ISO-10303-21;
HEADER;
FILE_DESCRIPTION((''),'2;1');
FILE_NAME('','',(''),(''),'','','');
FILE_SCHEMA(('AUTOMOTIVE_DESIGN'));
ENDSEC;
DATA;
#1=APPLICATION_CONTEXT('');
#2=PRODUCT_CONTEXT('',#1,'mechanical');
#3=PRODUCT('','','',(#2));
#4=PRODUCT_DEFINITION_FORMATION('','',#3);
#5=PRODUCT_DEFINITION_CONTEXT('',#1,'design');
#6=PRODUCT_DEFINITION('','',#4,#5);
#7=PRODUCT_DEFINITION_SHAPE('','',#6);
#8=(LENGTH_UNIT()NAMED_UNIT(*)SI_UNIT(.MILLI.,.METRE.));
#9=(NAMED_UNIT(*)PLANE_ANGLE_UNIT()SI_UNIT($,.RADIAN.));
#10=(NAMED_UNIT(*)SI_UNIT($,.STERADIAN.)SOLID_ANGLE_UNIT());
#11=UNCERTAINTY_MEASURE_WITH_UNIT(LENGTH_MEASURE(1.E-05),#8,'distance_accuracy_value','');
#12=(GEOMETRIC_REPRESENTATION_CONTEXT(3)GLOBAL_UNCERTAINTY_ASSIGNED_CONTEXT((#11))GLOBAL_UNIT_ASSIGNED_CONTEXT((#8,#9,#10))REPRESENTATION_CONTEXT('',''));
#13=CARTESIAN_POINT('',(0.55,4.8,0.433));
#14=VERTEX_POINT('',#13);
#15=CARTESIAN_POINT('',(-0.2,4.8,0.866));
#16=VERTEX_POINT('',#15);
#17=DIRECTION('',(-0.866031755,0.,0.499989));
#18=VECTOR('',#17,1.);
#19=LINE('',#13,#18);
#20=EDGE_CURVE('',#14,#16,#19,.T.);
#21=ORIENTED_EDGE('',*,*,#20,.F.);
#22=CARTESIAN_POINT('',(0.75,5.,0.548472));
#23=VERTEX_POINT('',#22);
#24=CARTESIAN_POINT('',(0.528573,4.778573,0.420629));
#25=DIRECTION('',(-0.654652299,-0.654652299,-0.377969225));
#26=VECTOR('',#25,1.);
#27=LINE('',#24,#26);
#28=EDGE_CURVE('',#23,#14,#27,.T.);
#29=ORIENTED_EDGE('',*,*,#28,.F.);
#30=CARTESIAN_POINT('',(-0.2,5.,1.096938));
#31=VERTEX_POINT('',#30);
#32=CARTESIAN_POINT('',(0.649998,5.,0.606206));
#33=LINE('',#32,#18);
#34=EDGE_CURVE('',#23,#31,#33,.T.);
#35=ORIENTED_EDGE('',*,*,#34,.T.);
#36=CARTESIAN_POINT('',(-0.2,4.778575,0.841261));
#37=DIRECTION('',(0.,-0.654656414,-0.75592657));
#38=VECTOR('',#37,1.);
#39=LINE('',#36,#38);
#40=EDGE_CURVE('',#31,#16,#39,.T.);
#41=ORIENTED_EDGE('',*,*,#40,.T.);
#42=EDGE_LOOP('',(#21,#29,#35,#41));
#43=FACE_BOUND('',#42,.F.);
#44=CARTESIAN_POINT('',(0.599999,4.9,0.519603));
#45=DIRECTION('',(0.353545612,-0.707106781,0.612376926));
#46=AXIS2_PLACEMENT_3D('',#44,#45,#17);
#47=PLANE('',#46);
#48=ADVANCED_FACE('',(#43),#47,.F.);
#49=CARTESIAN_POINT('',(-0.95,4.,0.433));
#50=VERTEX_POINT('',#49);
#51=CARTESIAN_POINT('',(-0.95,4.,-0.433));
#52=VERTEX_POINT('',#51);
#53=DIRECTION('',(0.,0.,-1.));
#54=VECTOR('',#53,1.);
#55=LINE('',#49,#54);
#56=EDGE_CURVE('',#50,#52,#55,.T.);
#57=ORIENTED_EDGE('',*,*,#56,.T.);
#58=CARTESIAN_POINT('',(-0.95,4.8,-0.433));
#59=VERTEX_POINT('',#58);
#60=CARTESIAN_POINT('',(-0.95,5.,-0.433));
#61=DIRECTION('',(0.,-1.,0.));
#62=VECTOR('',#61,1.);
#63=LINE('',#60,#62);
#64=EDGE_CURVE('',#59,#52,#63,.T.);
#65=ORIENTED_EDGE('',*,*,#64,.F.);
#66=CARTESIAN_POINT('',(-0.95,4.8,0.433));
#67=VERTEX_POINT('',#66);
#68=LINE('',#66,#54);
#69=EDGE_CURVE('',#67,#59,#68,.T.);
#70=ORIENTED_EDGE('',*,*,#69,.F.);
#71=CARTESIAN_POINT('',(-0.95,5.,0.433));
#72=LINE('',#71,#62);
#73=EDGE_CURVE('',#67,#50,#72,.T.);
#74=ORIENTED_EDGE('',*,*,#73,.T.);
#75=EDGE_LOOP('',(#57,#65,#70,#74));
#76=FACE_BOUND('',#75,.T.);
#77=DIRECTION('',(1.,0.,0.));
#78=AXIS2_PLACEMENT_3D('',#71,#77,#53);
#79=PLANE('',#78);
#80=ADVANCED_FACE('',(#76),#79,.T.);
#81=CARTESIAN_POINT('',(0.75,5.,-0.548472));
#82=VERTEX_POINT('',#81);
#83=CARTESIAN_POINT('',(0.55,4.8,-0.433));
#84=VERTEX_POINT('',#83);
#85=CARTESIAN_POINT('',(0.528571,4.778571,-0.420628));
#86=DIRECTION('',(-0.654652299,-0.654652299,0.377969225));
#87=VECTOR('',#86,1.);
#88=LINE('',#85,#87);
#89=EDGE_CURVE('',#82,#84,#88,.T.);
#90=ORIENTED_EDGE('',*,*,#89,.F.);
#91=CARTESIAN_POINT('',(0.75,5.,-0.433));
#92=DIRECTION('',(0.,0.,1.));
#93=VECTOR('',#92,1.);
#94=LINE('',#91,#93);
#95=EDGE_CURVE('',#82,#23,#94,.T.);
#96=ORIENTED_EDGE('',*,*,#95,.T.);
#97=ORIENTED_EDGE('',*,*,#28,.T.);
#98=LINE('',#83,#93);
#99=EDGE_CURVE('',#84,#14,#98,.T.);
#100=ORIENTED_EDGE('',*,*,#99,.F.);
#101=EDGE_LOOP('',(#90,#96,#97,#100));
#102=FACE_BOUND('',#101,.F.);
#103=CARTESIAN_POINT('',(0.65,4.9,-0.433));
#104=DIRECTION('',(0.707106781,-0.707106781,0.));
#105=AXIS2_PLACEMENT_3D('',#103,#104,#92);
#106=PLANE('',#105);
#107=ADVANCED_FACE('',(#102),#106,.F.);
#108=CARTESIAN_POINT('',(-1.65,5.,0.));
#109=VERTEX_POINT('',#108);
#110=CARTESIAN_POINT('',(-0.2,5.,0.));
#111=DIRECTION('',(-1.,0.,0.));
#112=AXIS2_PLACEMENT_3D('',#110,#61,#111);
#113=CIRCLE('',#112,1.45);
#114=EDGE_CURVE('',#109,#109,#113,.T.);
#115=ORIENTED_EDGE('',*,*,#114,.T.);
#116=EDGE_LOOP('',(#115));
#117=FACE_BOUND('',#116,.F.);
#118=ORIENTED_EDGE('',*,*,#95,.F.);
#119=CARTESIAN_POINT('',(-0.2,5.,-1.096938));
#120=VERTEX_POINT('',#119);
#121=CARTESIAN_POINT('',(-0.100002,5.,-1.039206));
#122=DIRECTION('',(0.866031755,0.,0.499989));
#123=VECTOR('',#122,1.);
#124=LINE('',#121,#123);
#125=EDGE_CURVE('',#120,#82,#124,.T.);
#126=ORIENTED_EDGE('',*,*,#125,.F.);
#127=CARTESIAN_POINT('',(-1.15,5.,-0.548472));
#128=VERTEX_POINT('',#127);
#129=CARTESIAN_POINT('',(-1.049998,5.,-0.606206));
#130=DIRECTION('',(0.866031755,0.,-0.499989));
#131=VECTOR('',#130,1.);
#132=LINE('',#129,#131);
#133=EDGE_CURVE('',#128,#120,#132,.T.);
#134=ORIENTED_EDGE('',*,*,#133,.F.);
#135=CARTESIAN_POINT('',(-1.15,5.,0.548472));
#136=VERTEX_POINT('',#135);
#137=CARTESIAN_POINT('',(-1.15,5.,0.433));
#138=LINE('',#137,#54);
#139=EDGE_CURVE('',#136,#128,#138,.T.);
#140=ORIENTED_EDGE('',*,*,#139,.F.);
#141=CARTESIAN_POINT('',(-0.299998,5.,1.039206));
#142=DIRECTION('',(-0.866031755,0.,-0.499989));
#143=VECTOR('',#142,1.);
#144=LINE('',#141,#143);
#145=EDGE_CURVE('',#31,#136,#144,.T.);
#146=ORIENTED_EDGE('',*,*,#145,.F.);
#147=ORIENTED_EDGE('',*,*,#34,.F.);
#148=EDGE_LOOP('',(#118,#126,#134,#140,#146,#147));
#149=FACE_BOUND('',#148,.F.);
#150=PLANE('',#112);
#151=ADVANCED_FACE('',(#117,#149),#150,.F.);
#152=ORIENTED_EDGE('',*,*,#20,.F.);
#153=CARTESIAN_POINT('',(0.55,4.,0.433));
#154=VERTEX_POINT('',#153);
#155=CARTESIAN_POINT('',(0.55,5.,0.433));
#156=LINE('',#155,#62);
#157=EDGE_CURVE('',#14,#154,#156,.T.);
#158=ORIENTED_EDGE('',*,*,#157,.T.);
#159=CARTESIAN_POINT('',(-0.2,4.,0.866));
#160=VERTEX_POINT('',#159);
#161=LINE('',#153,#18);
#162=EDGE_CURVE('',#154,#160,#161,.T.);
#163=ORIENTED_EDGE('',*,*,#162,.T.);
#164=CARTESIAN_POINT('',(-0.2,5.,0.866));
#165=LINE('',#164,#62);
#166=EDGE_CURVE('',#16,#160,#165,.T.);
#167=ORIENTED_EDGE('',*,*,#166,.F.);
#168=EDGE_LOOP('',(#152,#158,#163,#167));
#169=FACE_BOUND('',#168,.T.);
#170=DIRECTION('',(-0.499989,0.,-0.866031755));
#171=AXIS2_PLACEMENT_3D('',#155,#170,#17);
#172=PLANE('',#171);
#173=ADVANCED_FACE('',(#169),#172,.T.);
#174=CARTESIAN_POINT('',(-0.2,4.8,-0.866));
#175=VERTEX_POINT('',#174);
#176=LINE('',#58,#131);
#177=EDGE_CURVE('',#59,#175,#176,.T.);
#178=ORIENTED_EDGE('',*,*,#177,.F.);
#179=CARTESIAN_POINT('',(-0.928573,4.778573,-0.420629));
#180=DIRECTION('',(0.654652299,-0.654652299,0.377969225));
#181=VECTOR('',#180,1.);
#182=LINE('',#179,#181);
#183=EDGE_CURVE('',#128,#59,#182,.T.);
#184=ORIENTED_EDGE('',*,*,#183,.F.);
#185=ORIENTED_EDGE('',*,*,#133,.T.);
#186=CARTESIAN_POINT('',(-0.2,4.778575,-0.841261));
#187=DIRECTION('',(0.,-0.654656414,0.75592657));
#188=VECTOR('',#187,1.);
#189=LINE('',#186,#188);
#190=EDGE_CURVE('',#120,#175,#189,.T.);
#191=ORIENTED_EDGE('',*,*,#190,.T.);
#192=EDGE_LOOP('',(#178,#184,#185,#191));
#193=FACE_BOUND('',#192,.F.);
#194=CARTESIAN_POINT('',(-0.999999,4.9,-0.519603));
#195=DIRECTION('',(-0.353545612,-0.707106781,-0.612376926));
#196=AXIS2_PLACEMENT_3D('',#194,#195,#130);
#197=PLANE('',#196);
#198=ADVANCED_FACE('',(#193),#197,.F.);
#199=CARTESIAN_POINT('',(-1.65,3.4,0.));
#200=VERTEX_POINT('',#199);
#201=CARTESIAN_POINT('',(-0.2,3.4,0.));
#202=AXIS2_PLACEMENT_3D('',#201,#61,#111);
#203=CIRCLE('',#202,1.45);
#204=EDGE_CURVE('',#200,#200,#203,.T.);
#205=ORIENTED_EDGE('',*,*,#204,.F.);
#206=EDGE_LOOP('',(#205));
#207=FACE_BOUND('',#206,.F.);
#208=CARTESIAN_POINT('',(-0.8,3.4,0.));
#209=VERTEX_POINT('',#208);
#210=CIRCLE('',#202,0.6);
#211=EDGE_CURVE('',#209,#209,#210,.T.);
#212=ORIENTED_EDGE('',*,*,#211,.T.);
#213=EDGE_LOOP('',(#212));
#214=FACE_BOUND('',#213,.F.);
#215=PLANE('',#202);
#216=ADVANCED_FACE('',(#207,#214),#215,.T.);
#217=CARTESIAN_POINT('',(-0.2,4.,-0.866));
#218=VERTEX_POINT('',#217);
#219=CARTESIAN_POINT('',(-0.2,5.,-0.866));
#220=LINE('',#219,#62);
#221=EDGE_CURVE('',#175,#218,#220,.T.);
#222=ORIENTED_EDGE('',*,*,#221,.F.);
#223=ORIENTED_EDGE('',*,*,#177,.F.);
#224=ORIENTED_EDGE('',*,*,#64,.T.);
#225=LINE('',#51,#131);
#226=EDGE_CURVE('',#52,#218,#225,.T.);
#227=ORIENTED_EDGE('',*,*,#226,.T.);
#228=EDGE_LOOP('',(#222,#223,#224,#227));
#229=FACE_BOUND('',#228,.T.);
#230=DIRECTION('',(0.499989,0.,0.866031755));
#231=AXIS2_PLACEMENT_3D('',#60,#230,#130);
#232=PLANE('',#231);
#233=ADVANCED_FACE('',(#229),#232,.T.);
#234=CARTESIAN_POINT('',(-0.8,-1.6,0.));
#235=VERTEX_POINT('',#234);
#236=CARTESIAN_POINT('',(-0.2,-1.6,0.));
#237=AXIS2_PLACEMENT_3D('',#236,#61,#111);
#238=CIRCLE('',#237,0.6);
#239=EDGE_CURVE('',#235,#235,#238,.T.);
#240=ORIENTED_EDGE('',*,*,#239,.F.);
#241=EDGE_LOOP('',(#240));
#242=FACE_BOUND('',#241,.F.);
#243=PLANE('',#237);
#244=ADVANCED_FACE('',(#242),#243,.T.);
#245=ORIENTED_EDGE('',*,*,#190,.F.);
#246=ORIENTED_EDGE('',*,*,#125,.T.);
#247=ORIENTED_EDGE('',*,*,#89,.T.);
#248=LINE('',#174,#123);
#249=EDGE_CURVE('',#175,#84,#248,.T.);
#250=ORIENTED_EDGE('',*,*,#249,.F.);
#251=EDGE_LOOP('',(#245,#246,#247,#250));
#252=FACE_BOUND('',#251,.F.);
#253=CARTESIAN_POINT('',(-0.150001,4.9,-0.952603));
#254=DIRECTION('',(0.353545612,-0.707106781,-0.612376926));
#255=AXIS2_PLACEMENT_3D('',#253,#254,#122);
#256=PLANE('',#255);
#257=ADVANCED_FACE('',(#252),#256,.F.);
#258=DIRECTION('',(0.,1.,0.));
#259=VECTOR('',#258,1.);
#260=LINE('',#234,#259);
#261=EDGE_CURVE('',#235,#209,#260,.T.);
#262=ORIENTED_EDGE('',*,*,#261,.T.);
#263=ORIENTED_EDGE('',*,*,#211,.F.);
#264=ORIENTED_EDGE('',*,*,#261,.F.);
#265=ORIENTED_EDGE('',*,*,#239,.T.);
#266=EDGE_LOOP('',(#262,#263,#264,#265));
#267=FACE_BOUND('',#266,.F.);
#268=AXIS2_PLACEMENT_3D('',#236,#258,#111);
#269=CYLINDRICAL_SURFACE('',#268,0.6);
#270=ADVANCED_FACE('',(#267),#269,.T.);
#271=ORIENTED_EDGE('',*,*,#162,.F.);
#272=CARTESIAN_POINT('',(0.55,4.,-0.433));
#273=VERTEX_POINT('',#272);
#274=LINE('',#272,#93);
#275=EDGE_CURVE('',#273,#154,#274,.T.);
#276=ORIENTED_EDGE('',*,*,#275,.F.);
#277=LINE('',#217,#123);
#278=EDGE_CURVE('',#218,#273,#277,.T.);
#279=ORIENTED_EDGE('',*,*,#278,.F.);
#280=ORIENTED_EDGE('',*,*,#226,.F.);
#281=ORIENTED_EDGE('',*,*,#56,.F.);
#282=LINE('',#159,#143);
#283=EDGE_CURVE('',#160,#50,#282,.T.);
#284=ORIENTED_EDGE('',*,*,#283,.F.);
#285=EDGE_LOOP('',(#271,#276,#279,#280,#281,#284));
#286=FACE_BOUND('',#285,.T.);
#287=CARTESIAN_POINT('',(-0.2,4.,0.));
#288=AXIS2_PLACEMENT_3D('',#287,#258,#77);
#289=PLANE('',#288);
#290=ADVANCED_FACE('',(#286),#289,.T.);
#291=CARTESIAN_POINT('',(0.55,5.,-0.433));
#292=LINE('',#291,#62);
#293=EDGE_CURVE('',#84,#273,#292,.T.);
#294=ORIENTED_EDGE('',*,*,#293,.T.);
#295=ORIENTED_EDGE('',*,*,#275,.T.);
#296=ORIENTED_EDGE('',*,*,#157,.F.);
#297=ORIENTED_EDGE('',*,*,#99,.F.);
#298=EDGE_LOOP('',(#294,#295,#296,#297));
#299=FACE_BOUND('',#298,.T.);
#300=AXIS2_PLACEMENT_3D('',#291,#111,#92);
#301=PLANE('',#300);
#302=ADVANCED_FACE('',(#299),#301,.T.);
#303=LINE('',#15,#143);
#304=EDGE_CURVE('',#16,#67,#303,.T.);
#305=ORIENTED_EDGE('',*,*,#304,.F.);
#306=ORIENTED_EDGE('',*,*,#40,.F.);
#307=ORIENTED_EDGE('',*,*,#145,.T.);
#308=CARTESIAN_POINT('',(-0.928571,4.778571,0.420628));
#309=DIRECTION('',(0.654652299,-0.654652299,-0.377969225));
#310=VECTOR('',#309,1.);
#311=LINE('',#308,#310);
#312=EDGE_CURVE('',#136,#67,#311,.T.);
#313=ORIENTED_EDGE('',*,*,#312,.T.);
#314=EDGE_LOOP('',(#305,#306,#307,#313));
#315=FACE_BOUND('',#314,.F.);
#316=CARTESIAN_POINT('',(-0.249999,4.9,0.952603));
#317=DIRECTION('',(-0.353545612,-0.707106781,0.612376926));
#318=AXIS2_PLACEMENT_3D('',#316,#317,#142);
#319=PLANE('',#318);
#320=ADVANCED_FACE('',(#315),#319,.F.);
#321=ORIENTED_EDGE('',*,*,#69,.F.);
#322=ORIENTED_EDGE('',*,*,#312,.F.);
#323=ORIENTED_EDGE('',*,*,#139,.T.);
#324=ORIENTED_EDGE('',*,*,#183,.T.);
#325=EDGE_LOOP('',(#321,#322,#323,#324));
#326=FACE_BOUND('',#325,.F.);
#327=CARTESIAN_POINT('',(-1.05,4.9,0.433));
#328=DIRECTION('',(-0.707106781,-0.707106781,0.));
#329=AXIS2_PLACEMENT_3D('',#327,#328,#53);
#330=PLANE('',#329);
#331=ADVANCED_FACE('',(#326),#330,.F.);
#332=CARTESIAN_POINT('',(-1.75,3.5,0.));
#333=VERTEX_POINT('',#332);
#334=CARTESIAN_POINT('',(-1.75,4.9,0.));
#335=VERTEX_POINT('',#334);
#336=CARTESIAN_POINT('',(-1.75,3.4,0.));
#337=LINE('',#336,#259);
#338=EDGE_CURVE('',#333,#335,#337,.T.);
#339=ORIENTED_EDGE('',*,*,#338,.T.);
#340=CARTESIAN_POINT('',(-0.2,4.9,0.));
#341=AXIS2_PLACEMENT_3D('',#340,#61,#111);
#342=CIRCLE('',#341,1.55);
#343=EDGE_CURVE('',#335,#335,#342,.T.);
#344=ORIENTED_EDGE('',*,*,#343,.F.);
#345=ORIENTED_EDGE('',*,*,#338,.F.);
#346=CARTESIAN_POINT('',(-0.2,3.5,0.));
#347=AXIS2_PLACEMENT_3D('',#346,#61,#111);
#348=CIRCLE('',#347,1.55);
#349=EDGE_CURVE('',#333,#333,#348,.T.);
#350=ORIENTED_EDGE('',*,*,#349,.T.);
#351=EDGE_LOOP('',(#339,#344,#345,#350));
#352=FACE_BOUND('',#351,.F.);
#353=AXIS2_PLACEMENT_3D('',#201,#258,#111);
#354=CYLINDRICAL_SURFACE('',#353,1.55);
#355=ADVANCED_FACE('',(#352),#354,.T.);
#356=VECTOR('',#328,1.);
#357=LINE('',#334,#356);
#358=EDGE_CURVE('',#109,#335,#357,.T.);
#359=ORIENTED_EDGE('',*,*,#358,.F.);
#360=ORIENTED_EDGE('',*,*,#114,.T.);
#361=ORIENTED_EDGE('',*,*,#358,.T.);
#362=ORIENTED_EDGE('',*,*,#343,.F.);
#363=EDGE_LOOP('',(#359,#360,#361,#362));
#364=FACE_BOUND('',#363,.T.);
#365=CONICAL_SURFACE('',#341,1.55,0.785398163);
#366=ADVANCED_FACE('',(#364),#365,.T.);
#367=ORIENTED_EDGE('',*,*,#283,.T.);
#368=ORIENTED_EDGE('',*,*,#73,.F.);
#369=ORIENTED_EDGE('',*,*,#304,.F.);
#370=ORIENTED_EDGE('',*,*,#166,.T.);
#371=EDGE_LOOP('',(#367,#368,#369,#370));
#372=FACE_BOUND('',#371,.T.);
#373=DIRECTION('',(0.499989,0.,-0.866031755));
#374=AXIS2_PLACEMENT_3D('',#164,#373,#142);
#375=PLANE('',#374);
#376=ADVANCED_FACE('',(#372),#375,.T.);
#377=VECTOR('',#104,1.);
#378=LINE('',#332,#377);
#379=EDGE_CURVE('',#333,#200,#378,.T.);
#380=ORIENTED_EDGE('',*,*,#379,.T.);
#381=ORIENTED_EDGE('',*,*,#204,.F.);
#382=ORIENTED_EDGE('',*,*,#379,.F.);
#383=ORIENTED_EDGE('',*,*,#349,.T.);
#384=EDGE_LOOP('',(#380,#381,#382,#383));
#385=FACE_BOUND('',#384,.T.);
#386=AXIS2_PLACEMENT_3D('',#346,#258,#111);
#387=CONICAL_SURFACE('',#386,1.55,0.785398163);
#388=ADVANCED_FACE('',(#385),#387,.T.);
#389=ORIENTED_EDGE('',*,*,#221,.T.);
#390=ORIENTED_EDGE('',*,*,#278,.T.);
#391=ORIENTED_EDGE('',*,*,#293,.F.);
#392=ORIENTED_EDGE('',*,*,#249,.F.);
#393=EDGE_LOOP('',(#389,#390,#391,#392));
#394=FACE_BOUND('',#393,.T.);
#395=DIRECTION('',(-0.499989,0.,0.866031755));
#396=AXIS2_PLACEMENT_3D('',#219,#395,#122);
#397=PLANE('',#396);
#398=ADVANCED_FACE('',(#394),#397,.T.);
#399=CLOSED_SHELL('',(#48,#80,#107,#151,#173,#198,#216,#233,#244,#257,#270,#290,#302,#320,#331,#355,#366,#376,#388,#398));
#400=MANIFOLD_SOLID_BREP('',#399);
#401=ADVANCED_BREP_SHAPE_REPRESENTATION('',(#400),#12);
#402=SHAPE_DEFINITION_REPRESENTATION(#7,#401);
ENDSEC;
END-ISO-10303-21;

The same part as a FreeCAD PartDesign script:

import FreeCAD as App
import Part
import Sketcher

V = App.Vector
Q = App.Units.Quantity


def edges_at(feature, points):
    """Names of the edges that pass closest to the given points."""
    edges = feature.Shape.Edges
    near = lambda p: min(range(len(edges)), key=lambda i: edges[i].distToShape(Part.Vertex(*p))[0])
    return sorted({f"Edge{near(p) + 1}" for p in points})


def add_polygon(sketch, points):
    """Adds a closed chain of lines whose ends are joined by coincident constraints."""
    first, n = sketch.GeometryCount, len(points)
    for a, b in zip(points, points[1:] + points[:1]):
        sketch.addGeometry(Part.LineSegment(App.Vector(*a, 0), App.Vector(*b, 0)), False)
    for i in range(n):
        sketch.addConstraint(Sketcher.Constraint("Coincident", first + i, 2, first + (i + 1) % n, 1))

doc = App.newDocument("Part")
body = doc.addObject("PartDesign::Body", "Body")

# Sketch on XY plane
sketch1 = body.newObject("Sketcher::SketchObject", "Sketch")
sketch1.AttachmentSupport = (doc.getObject("XY_Plane"), [""])
sketch1.MapMode = "FlatFace"
add_polygon(sketch1, [(-0.2, 5), (-1.8, 5), (-1.8, 3.4), (-0.8, 3.4), (-0.8, -1.6), (-0.2, -1.6)])  # lines 0-5
sketch1.addGeometry(Part.LineSegment(V(-0.2, 5, 0), V(-0.2, -1.6, 0)), True)  # axis
sketch1.addConstraint([
    Sketcher.Constraint("Horizontal", 0),
    Sketcher.Constraint("Vertical", 1),
    Sketcher.Constraint("Horizontal", 2),
    Sketcher.Constraint("Vertical", 3),
    Sketcher.Constraint("Horizontal", 4),
    Sketcher.Constraint("Vertical", 5),
    Sketcher.Constraint("Vertical", 6),
    Sketcher.Constraint("Coincident", 6, 1, 5, 2),
    Sketcher.Constraint("Horizontal", 3, 2, 6, 2),
    Sketcher.Constraint("DistanceY", 3, 2, 3, 1, Q("5 mm")),
    Sketcher.Constraint("DistanceY", 1, 2, 1, 1, Q("1.6 mm")),
    Sketcher.Constraint("DistanceY", -1, 1, 0, 2, Q("5 mm")),
    Sketcher.Constraint("DistanceX", 2, 2, -1, 1, Q("0.8 mm")),
    Sketcher.Constraint("DistanceX", 0, 2, -1, 1, Q("1.75 mm")),
    Sketcher.Constraint("DistanceX", 4, 1, 4, 2, Q("0.6 mm")),
])
revolution = body.newObject("PartDesign::Revolution", "Revolution")
revolution.Profile = sketch1
revolution.ReferenceAxis = (sketch1, ["Axis0"])
revolution.Angle = 360

# Sketch on XZ plane
sketch2 = body.newObject("Sketcher::SketchObject", "Sketch001")
sketch2.AttachmentSupport = (doc.getObject("XZ_Plane"), [""])
sketch2.MapMode = "FlatFace"
sketch2.AttachmentOffset = App.Placement(V(0, 0, -5), App.Rotation())
add_polygon(sketch2, [(0.6, -0.4), (-0.2, -0.9), (-0.9, -0.4), (-0.9, 0.4), (-0.2, 0.9), (0.6, 0.4)])  # lines 0-5
sketch2.addConstraint([
    Sketcher.Constraint("Vertical", 2),
    Sketcher.Constraint("Vertical", 5),
    Sketcher.Constraint("Symmetric", 0, 2, 3, 2, -1),
    Sketcher.Constraint("Parallel", 0, 3),
    Sketcher.Constraint("Parallel", 1, 4),
    Sketcher.Constraint("Horizontal", 2, 2, 4, 2),
    Sketcher.Constraint("Horizontal", 1, 2, 5, 2),
    Sketcher.Constraint("DistanceX", 2, 2, 4, 2, Q("1.5 mm")),
    Sketcher.Constraint("Angle", 0, Q("-150.0007 deg")),
    Sketcher.Constraint("DistanceX", 0, 2, -1, 1, Q("0.2 mm")),
    Sketcher.Constraint("DistanceY", 2, 1, 2, 2, Q("0.866 mm")),
])
pocket1 = body.newObject("PartDesign::Pocket", "Pocket")
pocket1.Profile = sketch2
pocket1.Length = 1
pocket1.Reversed = True
doc.recompute()

chamfer = body.newObject("PartDesign::Chamfer", "Chamfer")
chamfer.Base = (pocket1, edges_at(pocket1, [(1.35, 5, 0), (1.35, 3.4, 0)]))
chamfer.Size = 0.1
doc.recompute()

chamfer2 = body.newObject("PartDesign::Chamfer", "Chamfer001")
chamfer2.Base = (chamfer, edges_at(chamfer, [
    (0.175, 5, 0.649),
    (-0.575, 5, 0.649),
    (-0.95, 5, 0),
    (-0.575, 5, -0.649),
    (0.175, 5, -0.649),
    (0.55, 5, 0),
]))
chamfer2.Size = 0.2

doc.recompute()
